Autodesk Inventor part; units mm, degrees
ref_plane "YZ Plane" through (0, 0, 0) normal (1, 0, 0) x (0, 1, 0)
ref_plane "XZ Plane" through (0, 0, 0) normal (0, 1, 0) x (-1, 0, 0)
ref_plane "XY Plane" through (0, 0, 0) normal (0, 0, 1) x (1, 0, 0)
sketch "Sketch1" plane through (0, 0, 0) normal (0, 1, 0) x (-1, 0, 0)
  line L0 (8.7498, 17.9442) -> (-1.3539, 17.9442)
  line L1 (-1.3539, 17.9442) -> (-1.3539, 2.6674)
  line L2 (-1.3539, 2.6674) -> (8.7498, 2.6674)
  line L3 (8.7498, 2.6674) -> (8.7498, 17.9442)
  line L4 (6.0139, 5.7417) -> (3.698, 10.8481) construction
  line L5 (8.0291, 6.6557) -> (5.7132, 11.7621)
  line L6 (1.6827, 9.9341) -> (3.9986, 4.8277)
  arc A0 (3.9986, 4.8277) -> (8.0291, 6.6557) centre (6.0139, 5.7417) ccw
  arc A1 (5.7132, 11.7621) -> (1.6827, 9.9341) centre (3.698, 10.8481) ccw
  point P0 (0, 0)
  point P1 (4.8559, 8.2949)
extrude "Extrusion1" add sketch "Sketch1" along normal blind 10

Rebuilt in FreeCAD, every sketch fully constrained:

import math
import FreeCAD as App
import Part
import Sketcher

V = App.Vector


def add_polygon(sketch, points):
    """Adds a closed chain of lines whose ends are joined by coincident constraints."""
    first, n = sketch.GeometryCount, len(points)
    for a, b in zip(points, points[1:] + points[:1]):
        sketch.addGeometry(Part.LineSegment(App.Vector(*a, 0), App.Vector(*b, 0)), False)
    for i in range(n):
        sketch.addConstraint(Sketcher.Constraint("Coincident", first + i, 2, first + (i + 1) % n, 1))

doc = App.newDocument("Part")
params = doc.addObject("Spreadsheet::Sheet", "Params")
for row, (alias, value) in enumerate([
    ("pad1_length", "10 mm"),
], start=1):
    params.set(f"A{row}", alias)
    params.set(f"B{row}", "=" + value)
    params.setAlias(f"B{row}", alias)

body = doc.addObject("PartDesign::Body", "Body")

sketch1 = doc.addObject("Sketcher::SketchObject", "Sketch")
body.addObject(sketch1)
sketch1.AttachmentSupport = (doc.XZ_Plane, [""])
sketch1.MapMode = "FlatFace"
add_polygon(sketch1, [(-8.7, 2.7), (-8.7, 17.9), (1.4, 17.9), (1.4, 2.7)])
sketch1.addGeometry(Part.LineSegment(V(-5.7, 11.8, 0), V(-8, 6.7, 0)), False)
sketch1.addGeometry(Part.ArcOfCircle(Part.Circle(V(-6, 5.7, 0), V(0, 0, 1), 2.2), math.radians(156), math.radians(336)), False)
sketch1.addGeometry(Part.LineSegment(V(-4, 4.8, 0), V(-1.7, 9.9, 0)), False)
sketch1.addGeometry(Part.ArcOfCircle(Part.Circle(V(-3.7, 10.8, 0), V(0, 0, 1), 2.2), math.radians(-24), math.radians(156)), False)
sketch1.addConstraint(Sketcher.Constraint("Tangent", 4, 2, 5, 1))
sketch1.addConstraint(Sketcher.Constraint("Tangent", 5, 2, 6, 1))
sketch1.addConstraint(Sketcher.Constraint("Tangent", 6, 2, 7, 1))
sketch1.addConstraint(Sketcher.Constraint("Tangent", 7, 2, 4, 1))
sketch1.addConstraint(Sketcher.Constraint("Vertical", 0))
sketch1.addConstraint(Sketcher.Constraint("Horizontal", 1))
sketch1.addConstraint(Sketcher.Constraint("Vertical", 2))
sketch1.addConstraint(Sketcher.Constraint("Horizontal", 3))
sketch1.addConstraint(Sketcher.Constraint("Equal", 5, 7))
sketch1.addConstraint(Sketcher.Constraint("Radius", 5, 2.2129))
sketch1.addConstraint(Sketcher.Constraint("Distance", 4, 5.607))
sketch1.addConstraint(Sketcher.Constraint("DistanceX", 1, 1, 1, 2, 10.1037))
sketch1.addConstraint(Sketcher.Constraint("DistanceY", 0, 1, 0, 2, 15.2768))
sketch1.addConstraint(Sketcher.Constraint("DistanceX", 5, 3, -1, 1, 6.014))
sketch1.addConstraint(Sketcher.Constraint("DistanceX", 7, 3, -1, 1, 3.698))
sketch1.addConstraint(Sketcher.Constraint("DistanceY", -1, 1, 7, 3, 10.848))
sketch1.addConstraint(Sketcher.Constraint("DistanceX", -1, 1, 1, 2, 1.354))
sketch1.addConstraint(Sketcher.Constraint("DistanceY", 7, 3, 0, 2, 7.096))
pad1 = doc.addObject("PartDesign::Pad", "Pad")
body.addObject(pad1)
pad1.Profile = sketch1
pad1.setExpression("Length", "Params.pad1_length")
pad1.Reversed = True

doc.recompute()
